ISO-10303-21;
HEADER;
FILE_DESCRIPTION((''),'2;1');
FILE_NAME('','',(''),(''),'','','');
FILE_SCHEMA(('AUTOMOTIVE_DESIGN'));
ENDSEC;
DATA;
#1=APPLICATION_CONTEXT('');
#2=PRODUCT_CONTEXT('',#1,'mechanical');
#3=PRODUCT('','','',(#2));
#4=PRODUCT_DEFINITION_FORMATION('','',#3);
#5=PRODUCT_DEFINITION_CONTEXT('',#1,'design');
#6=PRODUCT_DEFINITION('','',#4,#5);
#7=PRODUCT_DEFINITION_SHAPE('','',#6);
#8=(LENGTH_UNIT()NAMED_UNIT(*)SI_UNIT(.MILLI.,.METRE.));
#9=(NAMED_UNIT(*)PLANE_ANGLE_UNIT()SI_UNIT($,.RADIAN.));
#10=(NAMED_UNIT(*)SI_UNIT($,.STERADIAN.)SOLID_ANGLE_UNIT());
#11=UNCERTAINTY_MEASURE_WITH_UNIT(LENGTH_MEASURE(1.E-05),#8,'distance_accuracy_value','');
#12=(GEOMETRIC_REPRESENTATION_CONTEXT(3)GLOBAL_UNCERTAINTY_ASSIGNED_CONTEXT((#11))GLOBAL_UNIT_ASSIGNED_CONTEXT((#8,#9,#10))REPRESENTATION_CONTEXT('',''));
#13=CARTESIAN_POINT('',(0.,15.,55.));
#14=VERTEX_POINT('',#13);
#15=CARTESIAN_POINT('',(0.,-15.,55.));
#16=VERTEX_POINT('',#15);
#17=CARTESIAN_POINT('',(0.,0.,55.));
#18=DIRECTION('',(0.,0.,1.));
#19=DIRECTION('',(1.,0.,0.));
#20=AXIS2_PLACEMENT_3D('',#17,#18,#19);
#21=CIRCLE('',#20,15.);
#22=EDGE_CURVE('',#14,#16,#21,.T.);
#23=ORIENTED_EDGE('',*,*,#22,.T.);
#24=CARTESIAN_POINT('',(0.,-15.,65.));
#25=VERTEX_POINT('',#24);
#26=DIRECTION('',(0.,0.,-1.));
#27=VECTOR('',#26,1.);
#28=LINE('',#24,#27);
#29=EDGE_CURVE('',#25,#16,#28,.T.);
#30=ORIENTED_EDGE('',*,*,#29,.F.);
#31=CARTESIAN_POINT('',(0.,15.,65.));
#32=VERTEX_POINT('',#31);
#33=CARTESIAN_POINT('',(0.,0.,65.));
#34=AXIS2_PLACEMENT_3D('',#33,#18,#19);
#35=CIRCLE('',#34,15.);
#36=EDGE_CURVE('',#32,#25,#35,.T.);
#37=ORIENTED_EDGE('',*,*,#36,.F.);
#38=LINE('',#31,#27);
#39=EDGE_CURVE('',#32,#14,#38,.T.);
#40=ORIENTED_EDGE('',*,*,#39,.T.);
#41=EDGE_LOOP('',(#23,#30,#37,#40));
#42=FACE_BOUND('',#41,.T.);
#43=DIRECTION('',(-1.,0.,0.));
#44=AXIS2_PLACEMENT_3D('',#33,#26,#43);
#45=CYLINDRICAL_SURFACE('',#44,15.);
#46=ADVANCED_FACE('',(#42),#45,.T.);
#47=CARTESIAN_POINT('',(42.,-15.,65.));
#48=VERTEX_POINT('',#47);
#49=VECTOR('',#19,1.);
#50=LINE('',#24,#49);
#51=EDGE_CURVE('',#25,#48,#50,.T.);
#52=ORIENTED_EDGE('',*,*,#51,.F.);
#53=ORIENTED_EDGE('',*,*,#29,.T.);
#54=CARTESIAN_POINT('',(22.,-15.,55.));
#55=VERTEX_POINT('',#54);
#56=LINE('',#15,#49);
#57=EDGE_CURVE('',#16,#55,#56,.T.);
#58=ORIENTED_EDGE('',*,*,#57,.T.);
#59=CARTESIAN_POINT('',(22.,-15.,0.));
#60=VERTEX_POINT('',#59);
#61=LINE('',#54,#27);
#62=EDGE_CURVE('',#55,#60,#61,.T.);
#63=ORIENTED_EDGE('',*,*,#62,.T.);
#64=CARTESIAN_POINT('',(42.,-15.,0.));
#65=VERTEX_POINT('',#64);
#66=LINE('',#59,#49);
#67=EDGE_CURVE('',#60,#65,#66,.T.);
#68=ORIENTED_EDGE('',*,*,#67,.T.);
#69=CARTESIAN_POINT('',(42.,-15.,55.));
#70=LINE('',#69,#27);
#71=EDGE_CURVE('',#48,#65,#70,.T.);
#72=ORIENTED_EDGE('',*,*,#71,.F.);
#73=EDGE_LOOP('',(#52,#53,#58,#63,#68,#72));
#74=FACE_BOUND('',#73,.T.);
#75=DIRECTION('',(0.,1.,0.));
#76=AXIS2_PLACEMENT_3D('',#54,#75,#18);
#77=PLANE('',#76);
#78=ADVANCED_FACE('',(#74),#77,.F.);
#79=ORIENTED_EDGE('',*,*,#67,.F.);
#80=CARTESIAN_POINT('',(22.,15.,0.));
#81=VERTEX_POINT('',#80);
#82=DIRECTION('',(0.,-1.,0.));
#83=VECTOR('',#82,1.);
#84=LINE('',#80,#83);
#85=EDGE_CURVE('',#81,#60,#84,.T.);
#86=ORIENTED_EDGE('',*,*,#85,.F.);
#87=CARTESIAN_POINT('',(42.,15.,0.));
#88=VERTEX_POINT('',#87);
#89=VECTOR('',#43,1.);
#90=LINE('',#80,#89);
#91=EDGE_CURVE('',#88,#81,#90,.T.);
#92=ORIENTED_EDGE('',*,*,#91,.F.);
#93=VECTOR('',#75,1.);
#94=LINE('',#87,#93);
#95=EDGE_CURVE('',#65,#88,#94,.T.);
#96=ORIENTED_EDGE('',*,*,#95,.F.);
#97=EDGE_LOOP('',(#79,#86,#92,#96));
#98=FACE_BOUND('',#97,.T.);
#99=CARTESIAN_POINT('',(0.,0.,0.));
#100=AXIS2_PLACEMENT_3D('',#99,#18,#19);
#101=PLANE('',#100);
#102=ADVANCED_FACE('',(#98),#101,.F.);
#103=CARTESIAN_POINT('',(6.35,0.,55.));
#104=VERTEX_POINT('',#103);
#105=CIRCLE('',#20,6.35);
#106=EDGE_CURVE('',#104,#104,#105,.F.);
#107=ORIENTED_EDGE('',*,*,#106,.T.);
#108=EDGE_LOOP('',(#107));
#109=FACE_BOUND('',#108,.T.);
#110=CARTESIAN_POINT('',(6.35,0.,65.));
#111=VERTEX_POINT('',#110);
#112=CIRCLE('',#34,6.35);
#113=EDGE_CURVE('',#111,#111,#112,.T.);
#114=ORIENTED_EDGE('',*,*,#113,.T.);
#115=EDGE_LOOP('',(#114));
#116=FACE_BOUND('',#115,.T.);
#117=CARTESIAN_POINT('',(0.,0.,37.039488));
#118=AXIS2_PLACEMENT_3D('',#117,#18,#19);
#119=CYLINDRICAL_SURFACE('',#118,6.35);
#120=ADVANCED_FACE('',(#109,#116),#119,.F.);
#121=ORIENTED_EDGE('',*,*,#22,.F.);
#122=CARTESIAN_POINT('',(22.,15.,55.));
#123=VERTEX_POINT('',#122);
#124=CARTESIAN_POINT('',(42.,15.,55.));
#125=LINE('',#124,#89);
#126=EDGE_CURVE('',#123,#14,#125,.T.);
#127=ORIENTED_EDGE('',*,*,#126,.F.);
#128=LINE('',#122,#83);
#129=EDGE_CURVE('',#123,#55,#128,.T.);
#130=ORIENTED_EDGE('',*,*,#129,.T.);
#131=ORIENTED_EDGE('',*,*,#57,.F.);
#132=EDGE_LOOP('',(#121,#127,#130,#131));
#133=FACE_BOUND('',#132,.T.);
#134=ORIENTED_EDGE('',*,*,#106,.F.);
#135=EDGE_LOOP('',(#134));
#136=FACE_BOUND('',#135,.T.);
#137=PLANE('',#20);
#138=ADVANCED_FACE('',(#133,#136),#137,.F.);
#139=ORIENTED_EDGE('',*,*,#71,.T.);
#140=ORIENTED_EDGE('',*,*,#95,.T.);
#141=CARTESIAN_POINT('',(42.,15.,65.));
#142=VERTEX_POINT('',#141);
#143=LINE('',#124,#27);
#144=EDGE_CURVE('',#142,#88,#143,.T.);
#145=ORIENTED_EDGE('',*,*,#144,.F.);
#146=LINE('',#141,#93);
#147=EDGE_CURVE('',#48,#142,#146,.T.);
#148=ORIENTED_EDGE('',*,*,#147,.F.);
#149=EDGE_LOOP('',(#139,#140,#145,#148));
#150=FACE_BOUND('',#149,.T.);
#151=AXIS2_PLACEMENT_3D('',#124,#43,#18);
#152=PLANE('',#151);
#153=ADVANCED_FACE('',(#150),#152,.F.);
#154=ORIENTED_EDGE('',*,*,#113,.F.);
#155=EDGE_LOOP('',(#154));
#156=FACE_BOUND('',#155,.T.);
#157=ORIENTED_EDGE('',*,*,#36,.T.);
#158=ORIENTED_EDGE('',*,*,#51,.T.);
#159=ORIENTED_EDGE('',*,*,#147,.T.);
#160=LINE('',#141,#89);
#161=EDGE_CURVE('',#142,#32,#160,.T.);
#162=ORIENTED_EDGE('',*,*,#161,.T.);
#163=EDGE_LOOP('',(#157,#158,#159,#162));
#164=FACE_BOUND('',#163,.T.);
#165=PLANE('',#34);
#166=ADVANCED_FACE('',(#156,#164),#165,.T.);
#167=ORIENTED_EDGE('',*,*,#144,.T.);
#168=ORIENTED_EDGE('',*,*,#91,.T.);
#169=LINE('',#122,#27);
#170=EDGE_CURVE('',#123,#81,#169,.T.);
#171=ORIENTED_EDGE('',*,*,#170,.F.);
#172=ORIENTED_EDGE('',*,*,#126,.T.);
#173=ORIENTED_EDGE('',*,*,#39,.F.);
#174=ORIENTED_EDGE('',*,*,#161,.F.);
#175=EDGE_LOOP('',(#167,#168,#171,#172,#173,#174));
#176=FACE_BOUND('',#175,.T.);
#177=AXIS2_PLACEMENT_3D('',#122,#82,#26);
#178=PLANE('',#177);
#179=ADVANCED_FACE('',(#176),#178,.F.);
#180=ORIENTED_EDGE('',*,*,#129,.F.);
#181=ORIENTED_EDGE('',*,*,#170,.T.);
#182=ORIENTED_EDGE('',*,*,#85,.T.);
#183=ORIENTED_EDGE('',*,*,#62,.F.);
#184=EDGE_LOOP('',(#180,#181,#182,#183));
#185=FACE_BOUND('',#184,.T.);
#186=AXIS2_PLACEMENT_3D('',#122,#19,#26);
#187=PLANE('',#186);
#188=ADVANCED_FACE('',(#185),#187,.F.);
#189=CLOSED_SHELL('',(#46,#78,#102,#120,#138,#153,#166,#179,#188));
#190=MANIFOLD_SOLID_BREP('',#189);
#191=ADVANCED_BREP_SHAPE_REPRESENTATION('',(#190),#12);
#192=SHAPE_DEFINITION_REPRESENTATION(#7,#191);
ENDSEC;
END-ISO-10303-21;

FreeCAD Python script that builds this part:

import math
import FreeCAD as App
import Part
import Sketcher
from FreeCAD import Vector

doc = App.newDocument("Part")
body = doc.addObject("PartDesign::Body", "Body")

sketch1 = doc.addObject("Sketcher::SketchObject", "Sketch")
body.addObject(sketch1)
sketch1.AttachmentSupport = (doc.XY_Plane, [""])
sketch1.MapMode = "FlatFace"
sketch1.addGeometry([
    Part.LineSegment(Vector(22, 15, 0), Vector(22, -15, 0)),
    Part.LineSegment(Vector(22, -15, 0), Vector(42, -15, 0)),
    Part.LineSegment(Vector(42, -15, 0), Vector(42, 15, 0)),
    Part.LineSegment(Vector(42, 15, 0), Vector(22, 15, 0)),
], False)
sketch1.addConstraint([
    Sketcher.Constraint("Coincident", 0, 2, 1, 1),
    Sketcher.Constraint("Coincident", 1, 2, 2, 1),
    Sketcher.Constraint("Coincident", 2, 2, 3, 1),
    Sketcher.Constraint("Coincident", 3, 2, 0, 1),
    Sketcher.Constraint("Vertical", 0),
    Sketcher.Constraint("Horizontal", 1),
    Sketcher.Constraint("Vertical", 2),
    Sketcher.Constraint("Horizontal", 3),
    Sketcher.Constraint("DistanceX", 1, 1, 1, 2, 20.0),
    Sketcher.Constraint("DistanceY", 0, 2, 0, 1, 30.0),
    Sketcher.Constraint("DistanceX", -1, 1, 0, 2, 22.0),
    Sketcher.Constraint("DistanceY", 0, 2, -1, 1, 15.0),
])
pad1 = doc.addObject("PartDesign::Pad", "Pad")
body.addObject(pad1)
pad1.Profile = sketch1
pad1.Length = 55

sketch2 = doc.addObject("Sketcher::SketchObject", "Sketch001")
body.addObject(sketch2)
sketch2.AttachmentSupport = (doc.XY_Plane, [""])
sketch2.MapMode = "FlatFace"
sketch2.AttachmentOffset = App.Placement(Vector(0, 0, 55), App.Rotation())
sketch2.addGeometry([
    Part.LineSegment(Vector(42, -15, 0), Vector(42, 15, 0)),
    Part.LineSegment(Vector(42, 15, 0), Vector(0, 15, 0)),
    Part.ArcOfCircle(Part.Circle(Vector(0, 0, 0), Vector(0, 0, 1), 15), math.radians(90), math.radians(270)),
    Part.LineSegment(Vector(0, -15, 0), Vector(42, -15, 0)),
], False)
sketch2.addConstraint([
    Sketcher.Constraint("Coincident", 0, 2, 1, 1),
    Sketcher.Constraint("Tangent", 1, 2, 2, 1),
    Sketcher.Constraint("Tangent", 2, 2, 3, 1),
    Sketcher.Constraint("Coincident", 3, 2, 0, 1),
    Sketcher.Constraint("Vertical", 0),
    Sketcher.Constraint("Horizontal", 1),
    Sketcher.Constraint("Horizontal", 3),
    Sketcher.Constraint("Coincident", 2, 3, -1, 1),
    Sketcher.Constraint("Radius", 2, 15.0),
    Sketcher.Constraint("DistanceX", 1, 2, 1, 1, 42.0),
])
pad2 = doc.addObject("PartDesign::Pad", "Pad001")
body.addObject(pad2)
pad2.Profile = sketch2
pad2.Length = 10

sketch3 = doc.addObject("Sketcher::SketchObject", "Sketch002")
body.addObject(sketch3)
sketch3.AttachmentSupport = (doc.XY_Plane, [""])
sketch3.MapMode = "FlatFace"
sketch3.AttachmentOffset = App.Placement(Vector(0, 0, 65), App.Rotation())
sketch3.addGeometry(Part.Circle(Vector(0, 0, 0), Vector(0, 0, 1), 6), False)
sketch3.addConstraint([
    Sketcher.Constraint("Coincident", 0, 3, -1, 1),
    Sketcher.Constraint("Diameter", 0, 12.7),
])
pocket1 = doc.addObject("PartDesign::Pocket", "Pocket")
body.addObject(pocket1)
pocket1.Profile = sketch3
pocket1.Length = 10

doc.recompute()
